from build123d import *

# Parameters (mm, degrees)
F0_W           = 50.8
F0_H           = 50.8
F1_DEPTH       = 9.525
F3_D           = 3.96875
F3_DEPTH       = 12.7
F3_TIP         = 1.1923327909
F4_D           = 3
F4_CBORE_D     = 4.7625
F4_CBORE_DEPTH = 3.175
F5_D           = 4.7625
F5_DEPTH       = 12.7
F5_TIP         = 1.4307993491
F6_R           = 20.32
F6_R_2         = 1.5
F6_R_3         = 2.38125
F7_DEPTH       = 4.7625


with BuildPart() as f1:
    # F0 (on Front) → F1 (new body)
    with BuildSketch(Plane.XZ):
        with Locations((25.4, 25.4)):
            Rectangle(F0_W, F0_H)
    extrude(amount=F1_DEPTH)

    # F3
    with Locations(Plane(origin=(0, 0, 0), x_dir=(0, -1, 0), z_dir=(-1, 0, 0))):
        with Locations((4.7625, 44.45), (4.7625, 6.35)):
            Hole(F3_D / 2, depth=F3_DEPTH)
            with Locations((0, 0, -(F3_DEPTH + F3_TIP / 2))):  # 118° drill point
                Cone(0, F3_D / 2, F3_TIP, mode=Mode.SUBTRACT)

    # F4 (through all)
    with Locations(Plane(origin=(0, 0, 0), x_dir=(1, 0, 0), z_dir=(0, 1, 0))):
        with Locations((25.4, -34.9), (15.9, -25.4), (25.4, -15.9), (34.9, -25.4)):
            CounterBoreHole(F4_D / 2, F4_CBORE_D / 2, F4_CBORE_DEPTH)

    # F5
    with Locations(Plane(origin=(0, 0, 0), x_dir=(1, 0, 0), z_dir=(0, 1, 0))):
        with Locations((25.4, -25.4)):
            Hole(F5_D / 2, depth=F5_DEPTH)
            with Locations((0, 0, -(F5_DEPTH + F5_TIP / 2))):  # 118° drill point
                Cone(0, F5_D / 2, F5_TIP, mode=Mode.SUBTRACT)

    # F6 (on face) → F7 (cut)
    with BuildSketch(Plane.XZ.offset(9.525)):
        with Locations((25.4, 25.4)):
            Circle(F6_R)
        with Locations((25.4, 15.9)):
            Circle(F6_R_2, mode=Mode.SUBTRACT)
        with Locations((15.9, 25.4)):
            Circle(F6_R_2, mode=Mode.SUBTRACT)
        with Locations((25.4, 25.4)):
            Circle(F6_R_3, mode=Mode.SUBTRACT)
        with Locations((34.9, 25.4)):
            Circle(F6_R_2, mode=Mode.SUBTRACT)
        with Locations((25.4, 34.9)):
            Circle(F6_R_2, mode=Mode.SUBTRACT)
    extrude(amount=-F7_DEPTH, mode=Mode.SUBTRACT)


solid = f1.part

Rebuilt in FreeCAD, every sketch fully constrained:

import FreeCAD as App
import Part
import Sketcher

V = App.Vector
Q = App.Units.Quantity


def add_polygon(sketch, points):
    """Adds a closed chain of lines whose ends are joined by coincident constraints."""
    first, n = sketch.GeometryCount, len(points)
    for a, b in zip(points, points[1:] + points[:1]):
        sketch.addGeometry(Part.LineSegment(App.Vector(*a, 0), App.Vector(*b, 0)), False)
    for i in range(n):
        sketch.addConstraint(Sketcher.Constraint("Coincident", first + i, 2, first + (i + 1) % n, 1))

doc = App.newDocument("Part")
body = doc.addObject("PartDesign::Body", "Body")

sketch1 = doc.addObject("Sketcher::SketchObject", "Sketch")
body.addObject(sketch1)
sketch1.AttachmentSupport = (doc.XZ_Plane, [""])
sketch1.MapMode = "FlatFace"
add_polygon(sketch1, [(0, 51), (0, 0), (51, 0), (51, 51)])
sketch1.addConstraint([
    Sketcher.Constraint("Vertical", 0),
    Sketcher.Constraint("Horizontal", 1),
    Sketcher.Constraint("Vertical", 2),
    Sketcher.Constraint("Horizontal", 3),
    Sketcher.Constraint("Coincident", 0, 2, -1, 1),
    Sketcher.Constraint("Equal", 3, 0),
    Sketcher.Constraint("DistanceX", 1, 1, 1, 2, Q("2 in")),
])
pad1 = doc.addObject("PartDesign::Pad", "Pad")
body.addObject(pad1)
pad1.Profile = sketch1
pad1.Length = Q("0.375 in")

sketch2 = doc.addObject("Sketcher::SketchObject", "Sketch001")
body.addObject(sketch2)
sketch2.AttachmentSupport = (doc.YZ_Plane, [""])
sketch2.MapMode = "FlatFace"
sketch2.addGeometry([
    Part.Circle(V(-4.8, 44.5, 0), V(0, 0, 1), 2),
    Part.Circle(V(-4.8, 6.3, 0), V(0, 0, 1), 2),
], False)
sketch2.addConstraint([
    Sketcher.Constraint("Equal", 0, 1),
    Sketcher.Constraint("Vertical", 0, 3, 1, 3),
    Sketcher.Constraint("Diameter", 0, Q("0.15625 in")),
    Sketcher.Constraint("DistanceY", 1, 3, 0, 3, Q("1.5 in")),
    Sketcher.Constraint("DistanceY", -1, 1, 0, 3, Q("1.75 in")),
    Sketcher.Constraint("DistanceX", 0, 3, -1, 1, Q("0.1875 in")),
])
doc.recompute()
hole = doc.addObject("PartDesign::Hole", "Hole")
body.addObject(hole)
hole.Profile = sketch2
hole.ThreadType = "None"
hole.Diameter = Q("0.15625 in")
hole.DepthType = "Dimension"
hole.Depth = Q("0.5 in")
hole.DrillPoint = "Angled"
hole.DrillPointAngle = 118
hole.Reversed = True

sketch3 = doc.addObject("Sketcher::SketchObject", "Sketch002")
body.addObject(sketch3)
sketch3.AttachmentSupport = (doc.XZ_Plane, [""])
sketch3.MapMode = "FlatFace"
sketch3.addGeometry([
    Part.Circle(V(25.4, 34.9, 0), V(0, 0, 1), 1.5),
    Part.Circle(V(15.9, 25.4, 0), V(0, 0, 1), 1.5),
    Part.Circle(V(25.4, 15.9, 0), V(0, 0, 1), 1.5),
    Part.Circle(V(34.9, 25.4, 0), V(0, 0, 1), 1.5),
], False)
sketch3.addConstraint([
    Sketcher.Constraint("Equal", 0, 1),
    Sketcher.Constraint("Equal", 1, 2),
    Sketcher.Constraint("Equal", 2, 3),
    Sketcher.Constraint("Horizontal", 1, 3, 3, 3),
    Sketcher.Constraint("Vertical", 0, 3, 2, 3),
    Sketcher.Constraint("DistanceX", -1, 1, 0, 3, Q("1 in")),
    Sketcher.Constraint("DistanceY", -1, 1, 1, 3, Q("1 in")),
    Sketcher.Constraint("Diameter", 0, 3.0),
    Sketcher.Constraint("DistanceY", -1, 1, 0, 3, 34.9),
    Sketcher.Constraint("DistanceX", -1, 1, 1, 3, 15.9),
    Sketcher.Constraint("DistanceY", -1, 1, 2, 3, 15.9),
    Sketcher.Constraint("DistanceX", -1, 1, 3, 3, 34.9),
])
doc.recompute()
hole2 = doc.addObject("PartDesign::Hole", "Hole001")
body.addObject(hole2)
hole2.Profile = sketch3
hole2.ThreadType = "None"
hole2.Diameter = 3
hole2.DepthType = "ThroughAll"
hole2.HoleCutType = "Counterbore"
hole2.HoleCutDiameter = Q("0.1875 in")
hole2.HoleCutDepth = Q("0.125 in")
hole2.Reversed = True

sketch4 = doc.addObject("Sketcher::SketchObject", "Sketch003")
body.addObject(sketch4)
sketch4.AttachmentSupport = (doc.XZ_Plane, [""])
sketch4.MapMode = "FlatFace"
sketch4.addGeometry(Part.Circle(V(25.4, 25.4, 0), V(0, 0, 1), 2.4), False)
sketch4.addConstraint([
    Sketcher.Constraint("Diameter", 0, Q("0.1875 in")),
    Sketcher.Constraint("DistanceX", -1, 1, 0, 3, Q("1 in")),
    Sketcher.Constraint("DistanceY", -1, 1, 0, 3, Q("1 in")),
])
doc.recompute()
hole3 = doc.addObject("PartDesign::Hole", "Hole002")
body.addObject(hole3)
hole3.Profile = sketch4
hole3.ThreadType = "None"
hole3.Diameter = Q("0.1875 in")
hole3.DepthType = "Dimension"
hole3.Depth = Q("0.5 in")
hole3.DrillPoint = "Angled"
hole3.DrillPointAngle = 118
hole3.Reversed = True

sketch5 = doc.addObject("Sketcher::SketchObject", "Sketch004")
body.addObject(sketch5)
sketch5.AttachmentSupport = (doc.XZ_Plane, [""])
sketch5.MapMode = "FlatFace"
sketch5.AttachmentOffset = App.Placement(V(0, 0, 0.375 * 25.4), App.Rotation())
sketch5.addGeometry([
    Part.Circle(V(25.4, 25.4, 0), V(0, 0, 1), 20.3),
    Part.Circle(V(25.4, 15.9, 0), V(0, 0, 1), 1.5),
    Part.Circle(V(15.9, 25.4, 0), V(0, 0, 1), 1.5),
    Part.Circle(V(25.4, 25.4, 0), V(0, 0, 1), 2.4),
    Part.Circle(V(34.9, 25.4, 0), V(0, 0, 1), 1.5),
    Part.Circle(V(25.4, 34.9, 0), V(0, 0, 1), 1.5),
], False)
sketch5.addConstraint([
    Sketcher.Constraint("Coincident", 3, 3, 0, 3),
    Sketcher.Constraint("Equal", 1, 2),
    Sketcher.Constraint("Equal", 2, 4),
    Sketcher.Constraint("Equal", 4, 5),
    Sketcher.Constraint("Horizontal", 0, 3, 2, 3),
    Sketcher.Constraint("Horizontal", 3, 3, 4, 3),
    Sketcher.Constraint("Vertical", 0, 3, 1, 3),
    Sketcher.Constraint("Vertical", 3, 3, 5, 3),
    Sketcher.Constraint("Diameter", 0, Q("1.6 in")),
    Sketcher.Constraint("Diameter", 3, Q("0.1875 in")),
    Sketcher.Constraint("DistanceX", -1, 1, 0, 3, Q("1 in")),
    Sketcher.Constraint("DistanceY", -1, 1, 0, 3, Q("1 in")),
    Sketcher.Constraint("Diameter", 1, 3.0),
    Sketcher.Constraint("DistanceY", -1, 1, 1, 3, 15.9),
    Sketcher.Constraint("DistanceX", -1, 1, 2, 3, 15.9),
    Sketcher.Constraint("DistanceX", -1, 1, 4, 3, 34.9),
    Sketcher.Constraint("DistanceY", -1, 1, 5, 3, 34.9),
])
pocket1 = doc.addObject("PartDesign::Pocket", "Pocket")
body.addObject(pocket1)
pocket1.Profile = sketch5
pocket1.Length = Q("0.1875 in")

doc.recompute()
